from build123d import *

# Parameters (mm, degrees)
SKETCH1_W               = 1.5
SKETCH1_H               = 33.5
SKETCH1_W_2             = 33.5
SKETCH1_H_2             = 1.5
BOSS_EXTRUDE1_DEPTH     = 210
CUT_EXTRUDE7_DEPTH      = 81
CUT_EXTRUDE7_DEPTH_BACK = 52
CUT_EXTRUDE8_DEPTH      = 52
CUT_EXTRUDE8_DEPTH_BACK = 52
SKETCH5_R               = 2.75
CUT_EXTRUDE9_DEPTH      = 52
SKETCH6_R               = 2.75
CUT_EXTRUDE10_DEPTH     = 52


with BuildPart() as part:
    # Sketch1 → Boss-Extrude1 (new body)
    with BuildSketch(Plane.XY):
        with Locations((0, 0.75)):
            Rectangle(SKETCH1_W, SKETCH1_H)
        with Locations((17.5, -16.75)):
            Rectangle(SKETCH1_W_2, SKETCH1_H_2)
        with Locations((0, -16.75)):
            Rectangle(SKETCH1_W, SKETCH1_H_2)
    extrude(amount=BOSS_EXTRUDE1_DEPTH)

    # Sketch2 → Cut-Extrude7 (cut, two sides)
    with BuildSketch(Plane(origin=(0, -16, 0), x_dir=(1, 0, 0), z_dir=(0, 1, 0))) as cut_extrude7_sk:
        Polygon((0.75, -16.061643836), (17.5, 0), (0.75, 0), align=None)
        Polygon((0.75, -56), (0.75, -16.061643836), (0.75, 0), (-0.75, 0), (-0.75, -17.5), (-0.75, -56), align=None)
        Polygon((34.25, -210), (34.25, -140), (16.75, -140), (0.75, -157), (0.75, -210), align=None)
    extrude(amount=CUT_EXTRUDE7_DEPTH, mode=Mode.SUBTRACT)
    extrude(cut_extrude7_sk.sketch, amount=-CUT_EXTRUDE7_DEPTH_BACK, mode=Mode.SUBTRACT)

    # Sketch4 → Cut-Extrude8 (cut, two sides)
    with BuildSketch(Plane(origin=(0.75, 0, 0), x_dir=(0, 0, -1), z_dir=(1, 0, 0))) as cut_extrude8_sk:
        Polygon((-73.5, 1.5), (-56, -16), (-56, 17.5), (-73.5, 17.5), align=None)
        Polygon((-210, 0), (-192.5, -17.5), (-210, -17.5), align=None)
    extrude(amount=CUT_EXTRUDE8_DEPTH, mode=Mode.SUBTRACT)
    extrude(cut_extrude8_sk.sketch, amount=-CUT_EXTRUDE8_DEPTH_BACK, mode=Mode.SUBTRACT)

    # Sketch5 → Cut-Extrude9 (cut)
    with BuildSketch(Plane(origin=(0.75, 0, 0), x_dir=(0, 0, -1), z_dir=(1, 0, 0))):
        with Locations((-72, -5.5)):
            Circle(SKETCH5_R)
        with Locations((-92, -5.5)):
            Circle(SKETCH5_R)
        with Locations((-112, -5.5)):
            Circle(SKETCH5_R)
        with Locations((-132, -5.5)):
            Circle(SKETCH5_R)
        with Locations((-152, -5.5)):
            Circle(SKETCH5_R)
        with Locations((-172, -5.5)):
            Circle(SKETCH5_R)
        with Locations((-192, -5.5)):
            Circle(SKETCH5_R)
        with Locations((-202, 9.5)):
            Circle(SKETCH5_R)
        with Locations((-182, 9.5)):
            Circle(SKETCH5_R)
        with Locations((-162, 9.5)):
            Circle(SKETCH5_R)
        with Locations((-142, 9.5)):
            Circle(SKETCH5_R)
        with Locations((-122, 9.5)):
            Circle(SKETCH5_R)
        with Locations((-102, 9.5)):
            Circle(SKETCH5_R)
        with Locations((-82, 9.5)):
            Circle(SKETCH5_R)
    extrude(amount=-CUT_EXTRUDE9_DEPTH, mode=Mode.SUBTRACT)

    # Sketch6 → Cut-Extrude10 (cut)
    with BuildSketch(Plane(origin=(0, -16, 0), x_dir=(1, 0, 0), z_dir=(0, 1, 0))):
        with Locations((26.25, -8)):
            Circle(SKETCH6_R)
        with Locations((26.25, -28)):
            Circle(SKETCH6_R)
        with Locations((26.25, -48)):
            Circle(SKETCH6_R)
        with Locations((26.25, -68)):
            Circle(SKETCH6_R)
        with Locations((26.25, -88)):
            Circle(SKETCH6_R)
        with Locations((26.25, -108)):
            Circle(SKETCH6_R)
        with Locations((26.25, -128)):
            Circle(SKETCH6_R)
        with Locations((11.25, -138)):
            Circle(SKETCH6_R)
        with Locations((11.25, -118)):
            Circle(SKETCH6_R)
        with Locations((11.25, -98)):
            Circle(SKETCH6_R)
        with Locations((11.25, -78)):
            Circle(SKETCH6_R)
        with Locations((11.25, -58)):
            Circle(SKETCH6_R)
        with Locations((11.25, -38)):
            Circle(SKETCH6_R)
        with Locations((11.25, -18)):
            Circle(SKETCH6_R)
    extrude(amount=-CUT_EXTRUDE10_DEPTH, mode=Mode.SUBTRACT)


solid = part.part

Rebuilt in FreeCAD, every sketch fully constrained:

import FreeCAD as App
import Part
import Sketcher

V = App.Vector
Q = App.Units.Quantity

doc = App.newDocument("Part")
body = doc.addObject("PartDesign::Body", "Body")

sketch1 = doc.addObject("Sketcher::SketchObject", "Sketch")
body.addObject(sketch1)
sketch1.AttachmentSupport = (doc.XY_Plane, [""])
sketch1.MapMode = "FlatFace"
sketch1.addGeometry(Part.LineSegment(V(-0.8, 17.5, 0), V(-0.8, -17.5, 0)), False)
sketch1.addGeometry(Part.LineSegment(V(-0.8, -17.5, 0), V(34.2, -17.5, 0)), False)
sketch1.addGeometry(Part.LineSegment(V(34.2, -17.5, 0), V(34.2, -16, 0)), False)
sketch1.addGeometry(Part.LineSegment(V(34.2, -16, 0), V(0.8, -16, 0)), False)
sketch1.addGeometry(Part.LineSegment(V(0.8, -16, 0), V(0.8, 17.5, 0)), False)
sketch1.addGeometry(Part.LineSegment(V(0.8, 17.5, 0), V(-0.8, 17.5, 0)), False)
sketch1.addConstraint(Sketcher.Constraint("Coincident", 0, 2, 1, 1))
sketch1.addConstraint(Sketcher.Constraint("Coincident", 1, 2, 2, 1))
sketch1.addConstraint(Sketcher.Constraint("Coincident", 2, 2, 3, 1))
sketch1.addConstraint(Sketcher.Constraint("Coincident", 3, 2, 4, 1))
sketch1.addConstraint(Sketcher.Constraint("Coincident", 4, 2, 5, 1))
sketch1.addConstraint(Sketcher.Constraint("Coincident", 5, 2, 0, 1))
sketch1.addConstraint(Sketcher.Constraint("Vertical", 0))
sketch1.addConstraint(Sketcher.Constraint("Horizontal", 1))
sketch1.addConstraint(Sketcher.Constraint("Vertical", 2))
sketch1.addConstraint(Sketcher.Constraint("Horizontal", 3))
sketch1.addConstraint(Sketcher.Constraint("Vertical", 4))
sketch1.addConstraint(Sketcher.Constraint("Horizontal", 5))
sketch1.addConstraint(Sketcher.Constraint("Symmetric", 0, 2, 4, 2, -1, 1))
sketch1.addConstraint(Sketcher.Constraint("Equal", 1, 0))
sketch1.addConstraint(Sketcher.Constraint("Equal", 5, 2))
sketch1.addConstraint(Sketcher.Constraint("DistanceX", 1, 1, 1, 2, Q("35 mm")))
sketch1.addConstraint(Sketcher.Constraint("DistanceX", 3, 2, 3, 1, Q("33.5 mm")))
pad1 = doc.addObject("PartDesign::Pad", "Pad")
body.addObject(pad1)
pad1.Profile = sketch1
pad1.Length = 210

sketch2 = doc.addObject("Sketcher::SketchObject", "Sketch001")
body.addObject(sketch2)
sketch2.AttachmentSupport = (doc.XZ_Plane, [""])
sketch2.MapMode = "FlatFace"
sketch2.AttachmentOffset = App.Placement(V(0, 0, 16), App.Rotation())
sketch2.addGeometry(Part.LineSegment(V(0.8, 16.1, 0), V(17.5, 0, 0)), False)
sketch2.addGeometry(Part.LineSegment(V(17.5, 0, 0), V(-0.8, 0, 0)), False)
sketch2.addGeometry(Part.LineSegment(V(-0.8, 0, 0), V(-0.8, 56, 0)), False)
sketch2.addGeometry(Part.LineSegment(V(-0.8, 56, 0), V(0.8, 56, 0)), False)
sketch2.addGeometry(Part.LineSegment(V(0.8, 56, 0), V(0.8, 16.1, 0)), False)
sketch2.addGeometry(Part.LineSegment(V(34.2, 210, 0), V(34.2, 140, 0)), False)
sketch2.addGeometry(Part.LineSegment(V(34.2, 140, 0), V(16.8, 140, 0)), False)
sketch2.addGeometry(Part.LineSegment(V(16.8, 140, 0), V(0.8, 157, 0)), False)
sketch2.addGeometry(Part.LineSegment(V(0.8, 157, 0), V(0.8, 210, 0)), False)
sketch2.addGeometry(Part.LineSegment(V(0.8, 210, 0), V(34.2, 210, 0)), False)
sketch2.addConstraint(Sketcher.Constraint("Coincident", 0, 2, 1, 1))
sketch2.addConstraint(Sketcher.Constraint("Coincident", 1, 2, 2, 1))
sketch2.addConstraint(Sketcher.Constraint("Coincident", 2, 2, 3, 1))
sketch2.addConstraint(Sketcher.Constraint("Coincident", 3, 2, 4, 1))
sketch2.addConstraint(Sketcher.Constraint("Coincident", 4, 2, 0, 1))
sketch2.addConstraint(Sketcher.Constraint("Coincident", 5, 2, 6, 1))
sketch2.addConstraint(Sketcher.Constraint("Coincident", 6, 2, 7, 1))
sketch2.addConstraint(Sketcher.Constraint("Coincident", 7, 2, 8, 1))
sketch2.addConstraint(Sketcher.Constraint("Coincident", 8, 2, 9, 1))
sketch2.addConstraint(Sketcher.Constraint("Coincident", 9, 2, 5, 1))
sketch2.addConstraint(Sketcher.Constraint("Horizontal", 1))
sketch2.addConstraint(Sketcher.Constraint("Vertical", 2))
sketch2.addConstraint(Sketcher.Constraint("Horizontal", 3))
sketch2.addConstraint(Sketcher.Constraint("Vertical", 4))
sketch2.addConstraint(Sketcher.Constraint("Vertical", 5))
sketch2.addConstraint(Sketcher.Constraint("Horizontal", 6))
sketch2.addConstraint(Sketcher.Constraint("Vertical", 8))
sketch2.addConstraint(Sketcher.Constraint("Horizontal", 9))
sketch2.addConstraint(Sketcher.Constraint("PointOnObject", 0, 2, -1))
sketch2.addConstraint(Sketcher.Constraint("Vertical", 4, 2, 7, 2))
sketch2.addConstraint(Sketcher.Constraint("DistanceY", 2, 1, 2, 2, Q("56 mm")))
sketch2.addConstraint(Sketcher.Constraint("DistanceY", 5, 2, 5, 1, Q("70 mm")))
sketch2.addConstraint(Sketcher.Constraint("DistanceY", 8, 1, 8, 2, Q("53 mm")))
sketch2.addConstraint(Sketcher.Constraint("DistanceX", 3, 1, 3, 2, Q("1.5 mm")))
sketch2.addConstraint(Sketcher.Constraint("DistanceX", 6, 2, 6, 1, Q("17.5 mm")))
sketch2.addConstraint(Sketcher.Constraint("DistanceX", 9, 1, 9, 2, Q("33.5 mm")))
sketch2.addConstraint(Sketcher.Constraint("DistanceY", -1, 1, 5, 2, Q("140 mm")))
sketch2.addConstraint(Sketcher.Constraint("DistanceX", 1, 2, 1, 1, Q("18.25 mm")))
sketch2.addConstraint(Sketcher.Constraint("DistanceX", -1, 1, 0, 2, Q("17.5 mm")))
sketch2.addConstraint(Sketcher.Constraint("Distance", 0, Q("23.206441 mm")))
pocket1 = doc.addObject("PartDesign::Pocket", "Pocket")
body.addObject(pocket1)
pocket1.Profile = sketch2
pocket1.Type = "ThroughAll"
pocket1.Midplane = True

sketch3 = doc.addObject("Sketcher::SketchObject", "Sketch002")
body.addObject(sketch3)
sketch3.AttachmentSupport = (doc.YZ_Plane, [""])
sketch3.MapMode = "FlatFace"
sketch3.AttachmentOffset = App.Placement(V(0, 0, 0.75), App.Rotation())
sketch3.addGeometry(Part.LineSegment(V(2, 74, 0), V(-16, 56, 0)), False)
sketch3.addGeometry(Part.LineSegment(V(-16, 56, 0), V(18, 56, 0)), False)
sketch3.addGeometry(Part.LineSegment(V(18, 56, 0), V(18, 74, 0)), False)
sketch3.addGeometry(Part.LineSegment(V(18, 74, 0), V(2, 74, 0)), False)
sketch3.addGeometry(Part.LineSegment(V(-18, 192, 0), V(0, 210, 0)), False)
sketch3.addGeometry(Part.LineSegment(V(0, 210, 0), V(-18, 210, 0)), False)
sketch3.addGeometry(Part.LineSegment(V(-18, 210, 0), V(-18, 192, 0)), False)
sketch3.addConstraint(Sketcher.Constraint("Coincident", 0, 2, 1, 1))
sketch3.addConstraint(Sketcher.Constraint("Coincident", 1, 2, 2, 1))
sketch3.addConstraint(Sketcher.Constraint("Coincident", 2, 2, 3, 1))
sketch3.addConstraint(Sketcher.Constraint("Coincident", 3, 2, 0, 1))
sketch3.addConstraint(Sketcher.Constraint("Coincident", 4, 2, 5, 1))
sketch3.addConstraint(Sketcher.Constraint("Coincident", 5, 2, 6, 1))
sketch3.addConstraint(Sketcher.Constraint("Coincident", 6, 2, 4, 1))
sketch3.addConstraint(Sketcher.Constraint("Horizontal", 1))
sketch3.addConstraint(Sketcher.Constraint("Vertical", 2))
sketch3.addConstraint(Sketcher.Constraint("Horizontal", 3))
sketch3.addConstraint(Sketcher.Constraint("Horizontal", 5))
sketch3.addConstraint(Sketcher.Constraint("Vertical", 6))
sketch3.addConstraint(Sketcher.Constraint("PointOnObject", 4, 2, -2))
sketch3.addConstraint(Sketcher.Constraint("Parallel", 0, 4))
sketch3.addConstraint(Sketcher.Constraint("Equal", 5, 2))
sketch3.addConstraint(Sketcher.Constraint("Equal", 2, 6))
sketch3.addConstraint(Sketcher.Constraint("DistanceX", 3, 2, 3, 1, Q("16 mm")))
sketch3.addConstraint(Sketcher.Constraint("DistanceX", 1, 1, 1, 2, Q("33.5 mm")))
sketch3.addConstraint(Sketcher.Constraint("DistanceX", 0, 2, -1, 1, Q("16 mm")))
sketch3.addConstraint(Sketcher.Constraint("DistanceY", -1, 1, 0, 2, Q("56 mm")))
sketch3.addConstraint(Sketcher.Constraint("DistanceY", -1, 1, 4, 2, Q("210 mm")))
pocket2 = doc.addObject("PartDesign::Pocket", "Pocket001")
body.addObject(pocket2)
pocket2.Profile = sketch3
pocket2.Type = "ThroughAll"
pocket2.Midplane = True

sketch4 = doc.addObject("Sketcher::SketchObject", "Sketch003")
body.addObject(sketch4)
sketch4.AttachmentSupport = (doc.YZ_Plane, [""])
sketch4.MapMode = "FlatFace"
sketch4.AttachmentOffset = App.Placement(V(0, 0, 0.75), App.Rotation())
sketch4.addGeometry(Part.Circle(V(-5.5, 72, 0), V(0, 0, 1), 2.8), False)
sketch4.addGeometry(Part.Circle(V(-5.5, 92, 0), V(0, 0, 1), 2.8), False)
sketch4.addGeometry(Part.Circle(V(-5.5, 112, 0), V(0, 0, 1), 2.8), False)
sketch4.addGeometry(Part.Circle(V(-5.5, 132, 0), V(0, 0, 1), 2.8), False)
sketch4.addGeometry(Part.Circle(V(-5.5, 152, 0), V(0, 0, 1), 2.8), False)
sketch4.addGeometry(Part.Circle(V(-5.5, 172, 0), V(0, 0, 1), 2.8), False)
sketch4.addGeometry(Part.Circle(V(-5.5, 192, 0), V(0, 0, 1), 2.8), False)
sketch4.addGeometry(Part.Circle(V(9.5, 202, 0), V(0, 0, 1), 2.8), False)
sketch4.addGeometry(Part.Circle(V(9.5, 182, 0), V(0, 0, 1), 2.8), False)
sketch4.addGeometry(Part.Circle(V(9.5, 162, 0), V(0, 0, 1), 2.8), False)
sketch4.addGeometry(Part.Circle(V(9.5, 142, 0), V(0, 0, 1), 2.8), False)
sketch4.addGeometry(Part.Circle(V(9.5, 122, 0), V(0, 0, 1), 2.8), False)
sketch4.addGeometry(Part.Circle(V(9.5, 102, 0), V(0, 0, 1), 2.8), False)
sketch4.addGeometry(Part.Circle(V(9.5, 82, 0), V(0, 0, 1), 2.8), False)
sketch4.addConstraint(Sketcher.Constraint("Equal", 0, 1))
sketch4.addConstraint(Sketcher.Constraint("Equal", 1, 2))
sketch4.addConstraint(Sketcher.Constraint("Equal", 2, 3))
sketch4.addConstraint(Sketcher.Constraint("Equal", 3, 4))
sketch4.addConstraint(Sketcher.Constraint("Equal", 4, 5))
sketch4.addConstraint(Sketcher.Constraint("Equal", 5, 6))
sketch4.addConstraint(Sketcher.Constraint("Equal", 6, 7))
sketch4.addConstraint(Sketcher.Constraint("Equal", 7, 8))
sketch4.addConstraint(Sketcher.Constraint("Equal", 8, 9))
sketch4.addConstraint(Sketcher.Constraint("Equal", 9, 10))
sketch4.addConstraint(Sketcher.Constraint("Equal", 10, 11))
sketch4.addConstraint(Sketcher.Constraint("Equal", 11, 12))
sketch4.addConstraint(Sketcher.Constraint("Equal", 12, 13))
sketch4.addConstraint(Sketcher.Constraint("Vertical", 0, 3, 1, 3))
sketch4.addConstraint(Sketcher.Constraint("Vertical", 1, 3, 2, 3))
sketch4.addConstraint(Sketcher.Constraint("Vertical", 2, 3, 3, 3))
sketch4.addConstraint(Sketcher.Constraint("Vertical", 3, 3, 4, 3))
sketch4.addConstraint(Sketcher.Constraint("Vertical", 4, 3, 5, 3))
sketch4.addConstraint(Sketcher.Constraint("Vertical", 5, 3, 6, 3))
sketch4.addConstraint(Sketcher.Constraint("Vertical", 7, 3, 8, 3))
sketch4.addConstraint(Sketcher.Constraint("Vertical", 8, 3, 9, 3))
sketch4.addConstraint(Sketcher.Constraint("Vertical", 9, 3, 10, 3))
sketch4.addConstraint(Sketcher.Constraint("Vertical", 10, 3, 11, 3))
sketch4.addConstraint(Sketcher.Constraint("Vertical", 11, 3, 12, 3))
sketch4.addConstraint(Sketcher.Constraint("Vertical", 12, 3, 13, 3))
sketch4.addConstraint(Sketcher.Constraint("Diameter", 0, Q("5.5 mm")))
sketch4.addConstraint(Sketcher.Constraint("DistanceY", -1, 1, 0, 3, Q("72 mm")))
sketch4.addConstraint(Sketcher.Constraint("DistanceY", -1, 1, 1, 3, Q("92 mm")))
sketch4.addConstraint(Sketcher.Constraint("DistanceY", -1, 1, 2, 3, Q("112 mm")))
sketch4.addConstraint(Sketcher.Constraint("DistanceY", -1, 1, 3, 3, Q("132 mm")))
sketch4.addConstraint(Sketcher.Constraint("DistanceY", -1, 1, 4, 3, Q("152 mm")))
sketch4.addConstraint(Sketcher.Constraint("DistanceY", -1, 1, 5, 3, Q("172 mm")))
sketch4.addConstraint(Sketcher.Constraint("DistanceY", -1, 1, 6, 3, Q("192 mm")))
sketch4.addConstraint(Sketcher.Constraint("DistanceY", -1, 1, 7, 3, Q("202 mm")))
sketch4.addConstraint(Sketcher.Constraint("DistanceY", -1, 1, 8, 3, Q("182 mm")))
sketch4.addConstraint(Sketcher.Constraint("DistanceY", -1, 1, 9, 3, Q("162 mm")))
sketch4.addConstraint(Sketcher.Constraint("DistanceY", -1, 1, 10, 3, Q("142 mm")))
sketch4.addConstraint(Sketcher.Constraint("DistanceY", -1, 1, 11, 3, Q("122 mm")))
sketch4.addConstraint(Sketcher.Constraint("DistanceY", -1, 1, 12, 3, Q("102 mm")))
sketch4.addConstraint(Sketcher.Constraint("DistanceY", -1, 1, 13, 3, Q("82 mm")))
sketch4.addConstraint(Sketcher.Constraint("DistanceX", 6, 3, 7, 3, Q("15 mm")))
sketch4.addConstraint(Sketcher.Constraint("DistanceX", 0, 3, -1, 1, Q("5.5 mm")))
pocket3 = doc.addObject("PartDesign::Pocket", "Pocket002")
body.addObject(pocket3)
pocket3.Profile = sketch4
pocket3.Length = 52

sketch5 = doc.addObject("Sketcher::SketchObject", "Sketch004")
body.addObject(sketch5)
sketch5.AttachmentSupport = (doc.XZ_Plane, [""])
sketch5.MapMode = "FlatFace"
sketch5.AttachmentOffset = App.Placement(V(0, 0, 16), App.Rotation())
sketch5.addGeometry(Part.Circle(V(26.2, 8, 0), V(0, 0, 1), 2.8), False)
sketch5.addGeometry(Part.Circle(V(26.2, 28, 0), V(0, 0, 1), 2.8), False)
sketch5.addGeometry(Part.Circle(V(26.2, 48, 0), V(0, 0, 1), 2.8), False)
sketch5.addGeometry(Part.Circle(V(26.2, 68, 0), V(0, 0, 1), 2.8), False)
sketch5.addGeometry(Part.Circle(V(26.2, 88, 0), V(0, 0, 1), 2.8), False)
sketch5.addGeometry(Part.Circle(V(26.2, 108, 0), V(0, 0, 1), 2.8), False)
sketch5.addGeometry(Part.Circle(V(26.2, 128, 0), V(0, 0, 1), 2.8), False)
sketch5.addGeometry(Part.Circle(V(11.2, 138, 0), V(0, 0, 1), 2.8), False)
sketch5.addGeometry(Part.Circle(V(11.2, 118, 0), V(0, 0, 1), 2.8), False)
sketch5.addGeometry(Part.Circle(V(11.2, 98, 0), V(0, 0, 1), 2.8), False)
sketch5.addGeometry(Part.Circle(V(11.2, 78, 0), V(0, 0, 1), 2.8), False)
sketch5.addGeometry(Part.Circle(V(11.2, 58, 0), V(0, 0, 1), 2.8), False)
sketch5.addGeometry(Part.Circle(V(11.2, 38, 0), V(0, 0, 1), 2.8), False)
sketch5.addGeometry(Part.Circle(V(11.2, 18, 0), V(0, 0, 1), 2.8), False)
sketch5.addConstraint(Sketcher.Constraint("Equal", 0, 1))
sketch5.addConstraint(Sketcher.Constraint("Equal", 1, 2))
sketch5.addConstraint(Sketcher.Constraint("Equal", 2, 3))
sketch5.addConstraint(Sketcher.Constraint("Equal", 3, 4))
sketch5.addConstraint(Sketcher.Constraint("Equal", 4, 5))
sketch5.addConstraint(Sketcher.Constraint("Equal", 5, 6))
sketch5.addConstraint(Sketcher.Constraint("Equal", 6, 7))
sketch5.addConstraint(Sketcher.Constraint("Equal", 7, 8))
sketch5.addConstraint(Sketcher.Constraint("Equal", 8, 9))
sketch5.addConstraint(Sketcher.Constraint("Equal", 9, 10))
sketch5.addConstraint(Sketcher.Constraint("Equal", 10, 11))
sketch5.addConstraint(Sketcher.Constraint("Equal", 11, 12))
sketch5.addConstraint(Sketcher.Constraint("Equal", 12, 13))
sketch5.addConstraint(Sketcher.Constraint("Vertical", 0, 3, 1, 3))
sketch5.addConstraint(Sketcher.Constraint("Vertical", 1, 3, 2, 3))
sketch5.addConstraint(Sketcher.Constraint("Vertical", 2, 3, 3, 3))
sketch5.addConstraint(Sketcher.Constraint("Vertical", 3, 3, 4, 3))
sketch5.addConstraint(Sketcher.Constraint("Vertical", 4, 3, 5, 3))
sketch5.addConstraint(Sketcher.Constraint("Vertical", 5, 3, 6, 3))
sketch5.addConstraint(Sketcher.Constraint("Vertical", 7, 3, 8, 3))
sketch5.addConstraint(Sketcher.Constraint("Vertical", 8, 3, 9, 3))
sketch5.addConstraint(Sketcher.Constraint("Vertical", 9, 3, 10, 3))
sketch5.addConstraint(Sketcher.Constraint("Vertical", 10, 3, 11, 3))
sketch5.addConstraint(Sketcher.Constraint("Vertical", 11, 3, 12, 3))
sketch5.addConstraint(Sketcher.Constraint("Vertical", 12, 3, 13, 3))
sketch5.addConstraint(Sketcher.Constraint("Diameter", 0, Q("5.5 mm")))
sketch5.addConstraint(Sketcher.Constraint("DistanceY", -1, 1, 0, 3, Q("8 mm")))
sketch5.addConstraint(Sketcher.Constraint("DistanceY", -1, 1, 1, 3, Q("28 mm")))
sketch5.addConstraint(Sketcher.Constraint("DistanceY", -1, 1, 2, 3, Q("48 mm")))
sketch5.addConstraint(Sketcher.Constraint("DistanceY", -1, 1, 3, 3, Q("68 mm")))
sketch5.addConstraint(Sketcher.Constraint("DistanceY", -1, 1, 4, 3, Q("88 mm")))
sketch5.addConstraint(Sketcher.Constraint("DistanceY", -1, 1, 5, 3, Q("108 mm")))
sketch5.addConstraint(Sketcher.Constraint("DistanceY", -1, 1, 6, 3, Q("128 mm")))
sketch5.addConstraint(Sketcher.Constraint("DistanceY", -1, 1, 7, 3, Q("138 mm")))
sketch5.addConstraint(Sketcher.Constraint("DistanceY", -1, 1, 8, 3, Q("118 mm")))
sketch5.addConstraint(Sketcher.Constraint("DistanceY", -1, 1, 9, 3, Q("98 mm")))
sketch5.addConstraint(Sketcher.Constraint("DistanceY", -1, 1, 10, 3, Q("78 mm")))
sketch5.addConstraint(Sketcher.Constraint("DistanceY", -1, 1, 11, 3, Q("58 mm")))
sketch5.addConstraint(Sketcher.Constraint("DistanceY", -1, 1, 12, 3, Q("38 mm")))
sketch5.addConstraint(Sketcher.Constraint("DistanceY", -1, 1, 13, 3, Q("18 mm")))
sketch5.addConstraint(Sketcher.Constraint("DistanceX", 7, 3, 6, 3, Q("15 mm")))
sketch5.addConstraint(Sketcher.Constraint("DistanceX", -1, 1, 0, 3, Q("26.25 mm")))
pocket4 = doc.addObject("PartDesign::Pocket", "Pocket003")
body.addObject(pocket4)
pocket4.Profile = sketch5
pocket4.Length = 52
pocket4.Reversed = True

doc.recompute()
